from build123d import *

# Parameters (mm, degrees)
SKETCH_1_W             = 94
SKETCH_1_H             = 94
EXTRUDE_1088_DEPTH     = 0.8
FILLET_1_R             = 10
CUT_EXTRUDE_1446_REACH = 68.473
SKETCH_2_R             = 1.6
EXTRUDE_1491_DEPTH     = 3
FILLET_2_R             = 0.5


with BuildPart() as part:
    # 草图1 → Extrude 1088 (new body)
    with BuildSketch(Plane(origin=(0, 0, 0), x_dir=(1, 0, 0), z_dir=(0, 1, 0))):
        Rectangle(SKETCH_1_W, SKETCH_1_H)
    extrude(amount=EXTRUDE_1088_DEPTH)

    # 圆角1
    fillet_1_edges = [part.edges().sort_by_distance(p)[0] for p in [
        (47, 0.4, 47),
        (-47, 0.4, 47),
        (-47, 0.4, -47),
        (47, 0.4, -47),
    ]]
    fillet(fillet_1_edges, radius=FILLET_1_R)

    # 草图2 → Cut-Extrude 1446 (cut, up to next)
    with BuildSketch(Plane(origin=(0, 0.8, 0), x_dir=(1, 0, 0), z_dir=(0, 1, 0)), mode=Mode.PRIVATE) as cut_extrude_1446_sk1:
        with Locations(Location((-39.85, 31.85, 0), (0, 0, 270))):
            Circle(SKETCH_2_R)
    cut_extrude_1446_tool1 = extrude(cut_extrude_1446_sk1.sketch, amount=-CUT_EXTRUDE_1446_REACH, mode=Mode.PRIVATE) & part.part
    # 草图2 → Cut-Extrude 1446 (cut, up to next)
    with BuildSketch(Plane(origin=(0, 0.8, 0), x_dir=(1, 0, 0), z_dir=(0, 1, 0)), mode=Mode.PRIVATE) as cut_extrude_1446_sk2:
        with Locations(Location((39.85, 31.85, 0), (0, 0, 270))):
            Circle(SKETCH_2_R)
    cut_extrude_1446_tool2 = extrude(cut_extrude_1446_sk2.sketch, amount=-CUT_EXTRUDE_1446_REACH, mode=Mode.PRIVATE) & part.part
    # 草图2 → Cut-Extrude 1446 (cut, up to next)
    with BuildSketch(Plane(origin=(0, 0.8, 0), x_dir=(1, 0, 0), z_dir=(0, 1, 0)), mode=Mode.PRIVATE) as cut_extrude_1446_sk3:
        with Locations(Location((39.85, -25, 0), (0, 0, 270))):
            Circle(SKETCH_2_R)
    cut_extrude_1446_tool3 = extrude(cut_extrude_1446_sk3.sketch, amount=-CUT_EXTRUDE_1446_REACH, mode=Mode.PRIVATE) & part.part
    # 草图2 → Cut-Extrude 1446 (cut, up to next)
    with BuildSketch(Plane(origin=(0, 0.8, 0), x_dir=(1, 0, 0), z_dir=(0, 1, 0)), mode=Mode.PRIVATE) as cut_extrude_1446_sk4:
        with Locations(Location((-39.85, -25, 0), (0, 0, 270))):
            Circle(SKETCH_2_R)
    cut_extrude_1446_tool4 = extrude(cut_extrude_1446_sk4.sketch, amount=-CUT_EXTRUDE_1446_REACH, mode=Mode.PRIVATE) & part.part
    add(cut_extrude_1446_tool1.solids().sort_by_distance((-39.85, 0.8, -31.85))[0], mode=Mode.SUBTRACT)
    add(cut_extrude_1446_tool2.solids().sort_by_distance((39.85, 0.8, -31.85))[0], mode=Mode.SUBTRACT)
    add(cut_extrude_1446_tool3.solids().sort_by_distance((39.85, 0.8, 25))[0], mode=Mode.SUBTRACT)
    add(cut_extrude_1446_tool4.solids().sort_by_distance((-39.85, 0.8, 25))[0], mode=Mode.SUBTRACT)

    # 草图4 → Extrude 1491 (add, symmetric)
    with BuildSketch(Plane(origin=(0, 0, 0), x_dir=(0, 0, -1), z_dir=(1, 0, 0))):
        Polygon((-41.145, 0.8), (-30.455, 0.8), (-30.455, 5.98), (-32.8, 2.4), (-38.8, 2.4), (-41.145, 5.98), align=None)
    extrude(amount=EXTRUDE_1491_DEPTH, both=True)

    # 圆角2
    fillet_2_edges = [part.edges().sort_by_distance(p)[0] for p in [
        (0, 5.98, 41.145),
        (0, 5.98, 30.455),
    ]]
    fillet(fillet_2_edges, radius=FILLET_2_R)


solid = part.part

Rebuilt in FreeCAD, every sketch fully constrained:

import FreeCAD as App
import Part
import Sketcher
from FreeCAD import Vector


def edges_at(feature, points):
    """Names of the edges that pass closest to the given points."""
    edges = feature.Shape.Edges
    near = lambda p: min(range(len(edges)), key=lambda i: edges[i].distToShape(Part.Vertex(*p))[0])
    return sorted({f"Edge{near(p) + 1}" for p in points})


def add_polygon(sketch, points):
    """Adds a closed chain of lines whose ends are joined by coincident constraints."""
    first, n = sketch.GeometryCount, len(points)
    for a, b in zip(points, points[1:] + points[:1]):
        sketch.addGeometry(Part.LineSegment(App.Vector(*a, 0), App.Vector(*b, 0)), False)
    for i in range(n):
        sketch.addConstraint(Sketcher.Constraint("Coincident", first + i, 2, first + (i + 1) % n, 1))

doc = App.newDocument("Part")
body = doc.addObject("PartDesign::Body", "Body")

# Sketch on XZ plane
sketch1 = body.newObject("Sketcher::SketchObject", "Sketch")
sketch1.AttachmentSupport = (doc.getObject("XZ_Plane"), [""])
sketch1.MapMode = "FlatFace"
add_polygon(sketch1, [(-47, -47), (-47, 47), (47, 47), (47, -47)])  # lines 0-3
sketch1.addConstraint(Sketcher.Constraint("Vertical", 0))
sketch1.addConstraint(Sketcher.Constraint("Horizontal", 1))
sketch1.addConstraint(Sketcher.Constraint("Vertical", 2))
sketch1.addConstraint(Sketcher.Constraint("Horizontal", 3))
sketch1.addConstraint(Sketcher.Constraint("Symmetric", 0, 2, 2, 2, -1, 1))
sketch1.addConstraint(Sketcher.Constraint("Equal", 3, 0))
sketch1.addConstraint(Sketcher.Constraint("DistanceX", 1, 1, 1, 2, 94.0))
pad1 = body.newObject("PartDesign::Pad", "Pad")
pad1.Profile = sketch1
pad1.Length = 0.8
pad1.Reversed = True
doc.recompute()

fillet = body.newObject("PartDesign::Fillet", "Fillet")
fillet.Base = (pad1, edges_at(pad1, [
    (47, 0.4, 47),
    (-47, 0.4, 47),
    (-47, 0.4, -47),
    (47, 0.4, -47),
]))
fillet.Radius = 10

# Sketch on XZ plane
sketch2 = body.newObject("Sketcher::SketchObject", "Sketch001")
sketch2.AttachmentSupport = (doc.getObject("XZ_Plane"), [""])
sketch2.MapMode = "FlatFace"
sketch2.AttachmentOffset = App.Placement(Vector(0, 0, -0.8), App.Rotation())
sketch2.addGeometry(Part.Circle(Vector(-39.9, -31.9, 0), Vector(0, 0, 1), 1.6), False)
sketch2.addConstraint(Sketcher.Constraint("Diameter", 0, 3.2))
sketch2.addConstraint(Sketcher.Constraint("DistanceX", 0, 3, -1, 1, 39.85))
sketch2.addConstraint(Sketcher.Constraint("DistanceY", 0, 3, -1, 1, 31.85))
pocket1 = body.newObject("PartDesign::Pocket", "Pocket")
pocket1.Profile = sketch2
pocket1.Type = "UpToFirst"
pocket1.Reversed = True

# Sketch on XZ plane
sketch3 = body.newObject("Sketcher::SketchObject", "Sketch002")
sketch3.AttachmentSupport = (doc.getObject("XZ_Plane"), [""])
sketch3.MapMode = "FlatFace"
sketch3.AttachmentOffset = App.Placement(Vector(0, 0, -0.8), App.Rotation())
sketch3.addGeometry(Part.Circle(Vector(39.9, -31.9, 0), Vector(0, 0, 1), 1.6), False)
sketch3.addConstraint(Sketcher.Constraint("Diameter", 0, 3.2))
sketch3.addConstraint(Sketcher.Constraint("DistanceX", -1, 1, 0, 3, 39.85))
sketch3.addConstraint(Sketcher.Constraint("DistanceY", 0, 3, -1, 1, 31.85))
pocket2 = body.newObject("PartDesign::Pocket", "Pocket001")
pocket2.Profile = sketch3
pocket2.Type = "UpToFirst"
pocket2.Reversed = True

# Sketch on XZ plane
sketch4 = body.newObject("Sketcher::SketchObject", "Sketch003")
sketch4.AttachmentSupport = (doc.getObject("XZ_Plane"), [""])
sketch4.MapMode = "FlatFace"
sketch4.AttachmentOffset = App.Placement(Vector(0, 0, -0.8), App.Rotation())
sketch4.addGeometry(Part.Circle(Vector(39.9, 25, 0), Vector(0, 0, 1), 1.6), False)
sketch4.addConstraint(Sketcher.Constraint("Diameter", 0, 3.2))
sketch4.addConstraint(Sketcher.Constraint("DistanceY", -1, 1, 0, 3, 25.0))
sketch4.addConstraint(Sketcher.Constraint("DistanceX", -1, 1, 0, 3, 39.85))
pocket3 = body.newObject("PartDesign::Pocket", "Pocket002")
pocket3.Profile = sketch4
pocket3.Type = "UpToFirst"
pocket3.Reversed = True

# Sketch on XZ plane
sketch5 = body.newObject("Sketcher::SketchObject", "Sketch004")
sketch5.AttachmentSupport = (doc.getObject("XZ_Plane"), [""])
sketch5.MapMode = "FlatFace"
sketch5.AttachmentOffset = App.Placement(Vector(0, 0, -0.8), App.Rotation())
sketch5.addGeometry(Part.Circle(Vector(-39.9, 25, 0), Vector(0, 0, 1), 1.6), False)
sketch5.addConstraint(Sketcher.Constraint("Diameter", 0, 3.2))
sketch5.addConstraint(Sketcher.Constraint("DistanceY", -1, 1, 0, 3, 25.0))
sketch5.addConstraint(Sketcher.Constraint("DistanceX", 0, 3, -1, 1, 39.85))
pocket4 = body.newObject("PartDesign::Pocket", "Pocket003")
pocket4.Profile = sketch5
pocket4.Type = "UpToFirst"
pocket4.Reversed = True

# Sketch on YZ plane
sketch6 = body.newObject("Sketcher::SketchObject", "Sketch005")
sketch6.AttachmentSupport = (doc.getObject("YZ_Plane"), [""])
sketch6.MapMode = "FlatFace"
add_polygon(sketch6, [(0.8, 41.1), (0.8, 30.5), (6, 30.5), (2.4, 32.8), (2.4, 38.8), (6, 41.1)])  # lines 0-5
sketch6.addConstraint(Sketcher.Constraint("Vertical", 0))
sketch6.addConstraint(Sketcher.Constraint("Horizontal", 1))
sketch6.addConstraint(Sketcher.Constraint("Vertical", 3))
sketch6.addConstraint(Sketcher.Constraint("Horizontal", 5))
sketch6.addConstraint(Sketcher.Constraint("Vertical", 1, 2, 4, 2))
sketch6.addConstraint(Sketcher.Constraint("Equal", 2, 4))
sketch6.addConstraint(Sketcher.Constraint("DistanceY", 3, 1, 3, 2, 6.0))
sketch6.addConstraint(Sketcher.Constraint("DistanceX", 1, 1, 1, 2, 5.18))
sketch6.addConstraint(Sketcher.Constraint("DistanceY", 0, 2, 0, 1, 10.69))
sketch6.addConstraint(Sketcher.Constraint("DistanceX", -1, 1, 0, 2, 0.8))
sketch6.addConstraint(Sketcher.Constraint("DistanceX", -1, 1, 2, 2, 2.4))
sketch6.addConstraint(Sketcher.Constraint("DistanceY", -1, 1, 2, 2, 32.8))
pad2 = body.newObject("PartDesign::Pad", "Pad001")
pad2.Profile = sketch6
pad2.Length = 6
pad2.Midplane = True
doc.recompute()

fillet2 = body.newObject("PartDesign::Fillet", "Fillet001")
fillet2.Base = (pad2, edges_at(pad2, [(0, 5.98, 41.145), (0, 5.98, 30.455)]))
fillet2.Radius = 0.5

doc.recompute()
